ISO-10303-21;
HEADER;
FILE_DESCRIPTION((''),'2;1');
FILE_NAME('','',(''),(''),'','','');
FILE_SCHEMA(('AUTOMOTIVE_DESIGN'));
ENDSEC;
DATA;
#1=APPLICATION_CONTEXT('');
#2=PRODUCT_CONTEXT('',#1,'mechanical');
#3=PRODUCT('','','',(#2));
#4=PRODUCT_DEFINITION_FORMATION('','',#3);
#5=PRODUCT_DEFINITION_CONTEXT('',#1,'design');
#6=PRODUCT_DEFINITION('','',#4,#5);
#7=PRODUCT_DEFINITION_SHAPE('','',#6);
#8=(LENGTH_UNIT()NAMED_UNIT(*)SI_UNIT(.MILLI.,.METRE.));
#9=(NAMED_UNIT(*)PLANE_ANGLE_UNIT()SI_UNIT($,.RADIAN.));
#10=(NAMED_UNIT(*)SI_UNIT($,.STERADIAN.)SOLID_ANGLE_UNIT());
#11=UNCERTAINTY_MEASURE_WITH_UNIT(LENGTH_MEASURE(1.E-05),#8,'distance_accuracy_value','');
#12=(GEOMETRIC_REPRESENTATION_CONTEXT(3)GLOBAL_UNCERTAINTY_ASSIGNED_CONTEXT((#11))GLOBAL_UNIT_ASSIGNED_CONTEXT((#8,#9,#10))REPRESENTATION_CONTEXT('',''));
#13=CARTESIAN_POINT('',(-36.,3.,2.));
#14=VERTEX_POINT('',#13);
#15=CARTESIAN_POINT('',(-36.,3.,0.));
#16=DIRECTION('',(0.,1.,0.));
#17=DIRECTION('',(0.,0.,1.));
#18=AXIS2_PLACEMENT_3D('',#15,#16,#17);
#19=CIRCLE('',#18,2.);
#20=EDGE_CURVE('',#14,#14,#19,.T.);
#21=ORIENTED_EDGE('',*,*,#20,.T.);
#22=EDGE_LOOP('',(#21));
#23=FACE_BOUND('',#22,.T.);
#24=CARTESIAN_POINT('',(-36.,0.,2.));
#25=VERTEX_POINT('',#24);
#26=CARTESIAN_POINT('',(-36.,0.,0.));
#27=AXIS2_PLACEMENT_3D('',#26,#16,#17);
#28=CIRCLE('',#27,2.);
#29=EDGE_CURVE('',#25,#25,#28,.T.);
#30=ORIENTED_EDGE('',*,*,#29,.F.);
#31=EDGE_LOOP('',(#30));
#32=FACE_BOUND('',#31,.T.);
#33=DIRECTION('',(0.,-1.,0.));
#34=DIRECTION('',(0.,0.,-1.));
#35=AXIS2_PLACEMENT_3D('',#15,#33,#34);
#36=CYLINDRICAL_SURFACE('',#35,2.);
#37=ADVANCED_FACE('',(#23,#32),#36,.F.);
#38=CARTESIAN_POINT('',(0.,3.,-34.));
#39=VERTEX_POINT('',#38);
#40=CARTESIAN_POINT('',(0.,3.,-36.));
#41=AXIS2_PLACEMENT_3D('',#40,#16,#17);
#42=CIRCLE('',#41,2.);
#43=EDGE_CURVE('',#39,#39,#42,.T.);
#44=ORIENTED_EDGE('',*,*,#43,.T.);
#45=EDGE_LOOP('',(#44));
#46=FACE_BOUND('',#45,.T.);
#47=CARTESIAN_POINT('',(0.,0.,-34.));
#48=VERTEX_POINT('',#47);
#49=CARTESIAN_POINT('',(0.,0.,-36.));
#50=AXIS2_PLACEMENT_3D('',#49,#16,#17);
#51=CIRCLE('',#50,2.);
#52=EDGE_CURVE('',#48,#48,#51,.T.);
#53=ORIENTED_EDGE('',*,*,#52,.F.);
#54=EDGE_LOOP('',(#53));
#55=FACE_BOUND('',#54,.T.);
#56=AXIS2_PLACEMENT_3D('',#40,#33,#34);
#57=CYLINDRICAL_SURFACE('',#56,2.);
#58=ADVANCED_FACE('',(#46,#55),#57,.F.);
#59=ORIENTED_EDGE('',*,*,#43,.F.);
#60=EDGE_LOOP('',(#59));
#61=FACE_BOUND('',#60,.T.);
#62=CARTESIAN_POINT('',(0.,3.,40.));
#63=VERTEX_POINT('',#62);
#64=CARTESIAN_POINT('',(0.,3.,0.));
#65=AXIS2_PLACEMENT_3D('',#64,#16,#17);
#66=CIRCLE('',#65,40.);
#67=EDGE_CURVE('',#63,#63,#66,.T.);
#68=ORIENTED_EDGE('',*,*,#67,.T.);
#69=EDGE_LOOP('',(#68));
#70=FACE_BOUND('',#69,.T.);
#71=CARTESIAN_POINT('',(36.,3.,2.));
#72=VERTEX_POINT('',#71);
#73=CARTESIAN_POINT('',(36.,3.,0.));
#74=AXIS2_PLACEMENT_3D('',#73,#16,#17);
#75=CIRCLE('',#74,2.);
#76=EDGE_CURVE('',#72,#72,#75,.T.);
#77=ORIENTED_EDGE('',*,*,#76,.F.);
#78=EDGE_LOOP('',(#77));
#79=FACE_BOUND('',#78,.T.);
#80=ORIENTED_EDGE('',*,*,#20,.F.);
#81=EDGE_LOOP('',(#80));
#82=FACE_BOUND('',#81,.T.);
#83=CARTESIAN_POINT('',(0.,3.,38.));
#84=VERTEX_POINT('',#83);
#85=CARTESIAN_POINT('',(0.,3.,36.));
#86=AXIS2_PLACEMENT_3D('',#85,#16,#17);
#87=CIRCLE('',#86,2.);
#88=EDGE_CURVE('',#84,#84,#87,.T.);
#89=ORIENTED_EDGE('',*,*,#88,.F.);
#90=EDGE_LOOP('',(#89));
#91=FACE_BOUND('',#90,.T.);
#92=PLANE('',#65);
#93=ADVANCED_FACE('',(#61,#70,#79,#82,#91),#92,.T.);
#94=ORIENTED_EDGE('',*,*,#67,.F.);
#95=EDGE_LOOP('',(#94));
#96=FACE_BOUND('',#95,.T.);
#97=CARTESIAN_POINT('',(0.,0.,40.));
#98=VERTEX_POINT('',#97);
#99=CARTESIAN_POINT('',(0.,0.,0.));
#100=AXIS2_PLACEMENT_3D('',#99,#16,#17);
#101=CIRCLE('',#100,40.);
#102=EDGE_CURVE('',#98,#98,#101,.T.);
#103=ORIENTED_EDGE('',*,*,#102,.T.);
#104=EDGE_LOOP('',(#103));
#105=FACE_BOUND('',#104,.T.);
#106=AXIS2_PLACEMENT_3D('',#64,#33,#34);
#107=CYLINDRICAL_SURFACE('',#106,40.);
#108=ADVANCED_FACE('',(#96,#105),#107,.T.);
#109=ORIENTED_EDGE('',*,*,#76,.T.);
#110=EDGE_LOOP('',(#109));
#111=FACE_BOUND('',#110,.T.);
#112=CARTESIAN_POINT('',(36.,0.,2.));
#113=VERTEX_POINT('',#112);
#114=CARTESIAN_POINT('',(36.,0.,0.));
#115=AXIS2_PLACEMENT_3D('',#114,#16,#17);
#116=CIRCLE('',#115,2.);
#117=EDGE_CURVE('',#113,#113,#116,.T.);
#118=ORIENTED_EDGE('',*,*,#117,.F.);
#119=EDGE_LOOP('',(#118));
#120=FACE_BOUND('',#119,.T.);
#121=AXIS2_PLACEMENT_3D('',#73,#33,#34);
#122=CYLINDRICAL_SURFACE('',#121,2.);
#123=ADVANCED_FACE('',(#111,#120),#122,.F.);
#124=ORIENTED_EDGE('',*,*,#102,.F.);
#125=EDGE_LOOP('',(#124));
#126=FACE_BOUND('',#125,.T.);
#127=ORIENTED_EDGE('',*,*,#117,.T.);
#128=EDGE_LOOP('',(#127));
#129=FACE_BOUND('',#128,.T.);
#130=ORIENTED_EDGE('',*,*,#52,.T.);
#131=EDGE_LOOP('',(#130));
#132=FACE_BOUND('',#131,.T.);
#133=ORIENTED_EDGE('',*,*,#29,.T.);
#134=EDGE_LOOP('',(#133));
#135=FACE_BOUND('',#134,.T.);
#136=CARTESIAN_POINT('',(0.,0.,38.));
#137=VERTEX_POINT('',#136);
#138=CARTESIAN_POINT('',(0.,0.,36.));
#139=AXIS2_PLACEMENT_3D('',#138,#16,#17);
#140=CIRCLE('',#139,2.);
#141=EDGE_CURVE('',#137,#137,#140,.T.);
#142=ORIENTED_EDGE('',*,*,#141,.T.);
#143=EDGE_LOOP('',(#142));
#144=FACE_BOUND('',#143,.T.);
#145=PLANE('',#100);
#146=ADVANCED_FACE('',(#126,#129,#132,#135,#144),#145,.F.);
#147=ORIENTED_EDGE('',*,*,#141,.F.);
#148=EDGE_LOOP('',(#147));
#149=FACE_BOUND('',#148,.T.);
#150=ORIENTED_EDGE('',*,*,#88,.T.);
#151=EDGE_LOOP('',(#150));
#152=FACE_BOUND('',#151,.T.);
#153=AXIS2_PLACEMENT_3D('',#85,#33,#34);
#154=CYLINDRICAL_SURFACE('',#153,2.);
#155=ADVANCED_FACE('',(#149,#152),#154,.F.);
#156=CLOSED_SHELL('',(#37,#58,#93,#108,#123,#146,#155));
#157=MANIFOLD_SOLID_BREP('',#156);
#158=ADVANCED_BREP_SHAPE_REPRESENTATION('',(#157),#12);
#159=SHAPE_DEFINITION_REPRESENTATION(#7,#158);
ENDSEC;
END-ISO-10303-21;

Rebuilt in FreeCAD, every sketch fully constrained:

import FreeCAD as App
import Part
import Sketcher
Q = App.Units.Quantity

doc = App.newDocument("Part")
params = doc.addObject("Spreadsheet::Sheet", "Params")
for row, (alias, value) in enumerate([
    ("sketch1_diameter", "80 mm"),
    ("sketch1_diameter2", "4 mm"),
    ("pad1_length", "3 mm"),
], start=1):
    params.set(f"A{row}", alias)
    params.set(f"B{row}", "=" + value)
    params.setAlias(f"B{row}", alias)

body = doc.addObject("PartDesign::Body", "Body")

# Sketch on XZ plane
sketch1 = body.newObject("Sketcher::SketchObject", "Sketch")
sketch1.AttachmentSupport = (doc.getObject("XZ_Plane"), [""])
sketch1.MapMode = "FlatFace"
sketch1.addGeometry([
    Part.Circle(App.Vector(0, 0, 0), App.Vector(0, 0, 1), 40),  # 0
    Part.Circle(App.Vector(0, -36, 0), App.Vector(0, 0, 1), 2),  # 1
    Part.Circle(App.Vector(-36, 0, 0), App.Vector(0, 0, 1), 2),  # 2
    Part.Circle(App.Vector(36, 0, 0), App.Vector(0, 0, 1), 2),  # 3
    Part.Circle(App.Vector(0, 36, 0), App.Vector(0, 0, 1), 2),  # 4
], False)
sketch1.addConstraint([
    Sketcher.Constraint("Coincident", 0, 3, -1, 1),
    Sketcher.Constraint("Equal", 1, 2),
    Sketcher.Constraint("Equal", 2, 3),
    Sketcher.Constraint("Equal", 3, 4),
    Sketcher.Constraint("Symmetric", 2, 3, 3, 3, -1, 1),
    Sketcher.Constraint("Symmetric", 1, 3, 4, 3, -1, 1),
    Sketcher.Constraint("PointOnObject", 1, 3, -2),
    Sketcher.Constraint("PointOnObject", 2, 3, -1),
    Sketcher.Constraint("Diameter", 0, Q("80 mm")),
    Sketcher.Constraint("Diameter", 1, Q("4 mm")),
    Sketcher.Constraint("DistanceY", 1, 3, -1, 1, Q("36 mm")),
    Sketcher.Constraint("DistanceX", 2, 3, -1, 1, Q("36 mm")),
])
sketch1.setExpression("Constraints[8]", "Params.sketch1_diameter")
sketch1.setExpression("Constraints[9]", "Params.sketch1_diameter2")
pad1 = body.newObject("PartDesign::Pad", "Pad")
pad1.Profile = sketch1
pad1.setExpression("Length", "Params.pad1_length")
pad1.Reversed = True

doc.recompute()
